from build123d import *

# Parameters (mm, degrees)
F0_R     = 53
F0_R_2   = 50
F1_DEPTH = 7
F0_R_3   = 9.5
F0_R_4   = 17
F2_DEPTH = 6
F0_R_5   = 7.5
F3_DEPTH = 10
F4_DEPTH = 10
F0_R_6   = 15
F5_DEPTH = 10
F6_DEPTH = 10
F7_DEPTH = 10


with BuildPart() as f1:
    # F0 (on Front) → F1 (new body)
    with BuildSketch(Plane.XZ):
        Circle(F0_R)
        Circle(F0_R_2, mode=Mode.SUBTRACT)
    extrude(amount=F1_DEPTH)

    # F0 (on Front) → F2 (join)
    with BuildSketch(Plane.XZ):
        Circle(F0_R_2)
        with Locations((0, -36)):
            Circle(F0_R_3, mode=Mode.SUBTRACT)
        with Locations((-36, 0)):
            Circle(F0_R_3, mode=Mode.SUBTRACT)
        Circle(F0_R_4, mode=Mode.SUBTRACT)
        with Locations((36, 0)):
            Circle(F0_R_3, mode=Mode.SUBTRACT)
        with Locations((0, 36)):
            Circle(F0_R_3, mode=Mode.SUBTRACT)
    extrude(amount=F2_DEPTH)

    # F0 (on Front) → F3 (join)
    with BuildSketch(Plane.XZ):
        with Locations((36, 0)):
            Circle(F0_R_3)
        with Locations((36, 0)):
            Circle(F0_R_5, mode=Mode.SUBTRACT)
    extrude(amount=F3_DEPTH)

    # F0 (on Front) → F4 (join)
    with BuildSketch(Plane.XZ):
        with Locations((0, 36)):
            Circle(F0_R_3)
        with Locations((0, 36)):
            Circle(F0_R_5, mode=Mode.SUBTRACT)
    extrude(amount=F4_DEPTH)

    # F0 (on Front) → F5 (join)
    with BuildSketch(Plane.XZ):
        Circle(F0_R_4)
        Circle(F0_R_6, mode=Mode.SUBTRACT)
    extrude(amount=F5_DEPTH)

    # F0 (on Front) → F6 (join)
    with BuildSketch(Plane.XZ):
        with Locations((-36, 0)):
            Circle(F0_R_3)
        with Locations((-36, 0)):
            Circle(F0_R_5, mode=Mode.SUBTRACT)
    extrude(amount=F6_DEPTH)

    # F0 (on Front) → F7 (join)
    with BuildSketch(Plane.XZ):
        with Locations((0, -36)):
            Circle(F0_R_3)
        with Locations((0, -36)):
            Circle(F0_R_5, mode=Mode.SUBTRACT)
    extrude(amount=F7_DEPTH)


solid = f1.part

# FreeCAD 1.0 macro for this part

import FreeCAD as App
import Part
import Sketcher
Q = App.Units.Quantity

doc = App.newDocument("Part")
body = doc.addObject("PartDesign::Body", "Body")

# Sketch on XZ plane
sketch1 = body.newObject("Sketcher::SketchObject", "Sketch")
sketch1.AttachmentSupport = (doc.getObject("XZ_Plane"), [""])
sketch1.MapMode = "FlatFace"
sketch1.addGeometry([
    Part.Circle(App.Vector(0, 0, 0), App.Vector(0, 0, 1), 53),
    Part.Circle(App.Vector(0, 0, 0), App.Vector(0, 0, 1), 50),
], False)
sketch1.addConstraint([
    Sketcher.Constraint("Coincident", 0, 3, -1, 1),
    Sketcher.Constraint("Coincident", 1, 3, -1, 1),
    Sketcher.Constraint("Diameter", 0, Q("106 mm")),
    Sketcher.Constraint("Diameter", 1, Q("100 mm")),
])
pad1 = body.newObject("PartDesign::Pad", "Pad")
pad1.Profile = sketch1
pad1.Length = 7

# Sketch on XZ plane
sketch2 = body.newObject("Sketcher::SketchObject", "Sketch001")
sketch2.AttachmentSupport = (doc.getObject("XZ_Plane"), [""])
sketch2.MapMode = "FlatFace"
sketch2.addGeometry([
    Part.Circle(App.Vector(0, 0, 0), App.Vector(0, 0, 1), 50),  # 0
    Part.Circle(App.Vector(0, -36, 0), App.Vector(0, 0, 1), 10),  # 1
    Part.Circle(App.Vector(-36, 0, 0), App.Vector(0, 0, 1), 10),  # 2
    Part.Circle(App.Vector(0, 0, 0), App.Vector(0, 0, 1), 17),  # 3
    Part.Circle(App.Vector(36, 0, 0), App.Vector(0, 0, 1), 10),  # 4
    Part.Circle(App.Vector(0, 36, 0), App.Vector(0, 0, 1), 10),  # 5
], False)
sketch2.addConstraint([
    Sketcher.Constraint("Coincident", 0, 3, -1, 1),
    Sketcher.Constraint("Coincident", 3, 3, -1, 1),
    Sketcher.Constraint("Equal", 1, 2),
    Sketcher.Constraint("Equal", 2, 4),
    Sketcher.Constraint("Equal", 4, 5),
    Sketcher.Constraint("Symmetric", 2, 3, 4, 3, -1, 1),
    Sketcher.Constraint("Symmetric", 1, 3, 5, 3, -1, 1),
    Sketcher.Constraint("PointOnObject", 1, 3, -2),
    Sketcher.Constraint("PointOnObject", 2, 3, -1),
    Sketcher.Constraint("Diameter", 0, Q("100 mm")),
    Sketcher.Constraint("Diameter", 1, Q("19 mm")),
    Sketcher.Constraint("Diameter", 3, Q("34 mm")),
    Sketcher.Constraint("DistanceY", 1, 3, -1, 1, Q("36 mm")),
    Sketcher.Constraint("DistanceX", 2, 3, -1, 1, Q("36 mm")),
])
pad2 = body.newObject("PartDesign::Pad", "Pad001")
pad2.Profile = sketch2
pad2.Length = 6

# Sketch on XZ plane
sketch3 = body.newObject("Sketcher::SketchObject", "Sketch002")
sketch3.AttachmentSupport = (doc.getObject("XZ_Plane"), [""])
sketch3.MapMode = "FlatFace"
sketch3.addGeometry([
    Part.Circle(App.Vector(36, 0, 0), App.Vector(0, 0, 1), 10),
    Part.Circle(App.Vector(36, 0, 0), App.Vector(0, 0, 1), 8),
], False)
sketch3.addConstraint([
    Sketcher.Constraint("Coincident", 1, 3, 0, 3),
    Sketcher.Constraint("PointOnObject", 0, 3, -1),
    Sketcher.Constraint("Diameter", 0, Q("19 mm")),
    Sketcher.Constraint("Diameter", 1, Q("15 mm")),
    Sketcher.Constraint("DistanceX", -1, 1, 0, 3, Q("36 mm")),
])
pad3 = body.newObject("PartDesign::Pad", "Pad002")
pad3.Profile = sketch3
pad3.Length = 10

# Sketch on XZ plane
sketch4 = body.newObject("Sketcher::SketchObject", "Sketch003")
sketch4.AttachmentSupport = (doc.getObject("XZ_Plane"), [""])
sketch4.MapMode = "FlatFace"
sketch4.addGeometry([
    Part.Circle(App.Vector(0, 36, 0), App.Vector(0, 0, 1), 10),
    Part.Circle(App.Vector(0, 36, 0), App.Vector(0, 0, 1), 8),
], False)
sketch4.addConstraint([
    Sketcher.Constraint("Coincident", 1, 3, 0, 3),
    Sketcher.Constraint("PointOnObject", 0, 3, -2),
    Sketcher.Constraint("Diameter", 0, Q("19 mm")),
    Sketcher.Constraint("Diameter", 1, Q("15 mm")),
    Sketcher.Constraint("DistanceY", -1, 1, 0, 3, Q("36 mm")),
])
pad4 = body.newObject("PartDesign::Pad", "Pad003")
pad4.Profile = sketch4
pad4.Length = 10

# Sketch on XZ plane
sketch5 = body.newObject("Sketcher::SketchObject", "Sketch004")
sketch5.AttachmentSupport = (doc.getObject("XZ_Plane"), [""])
sketch5.MapMode = "FlatFace"
sketch5.addGeometry([
    Part.Circle(App.Vector(0, 0, 0), App.Vector(0, 0, 1), 17),
    Part.Circle(App.Vector(0, 0, 0), App.Vector(0, 0, 1), 15),
], False)
sketch5.addConstraint([
    Sketcher.Constraint("Coincident", 0, 3, -1, 1),
    Sketcher.Constraint("Coincident", 1, 3, -1, 1),
    Sketcher.Constraint("Diameter", 0, Q("34 mm")),
    Sketcher.Constraint("Diameter", 1, Q("30 mm")),
])
pad5 = body.newObject("PartDesign::Pad", "Pad004")
pad5.Profile = sketch5
pad5.Length = 10

# Sketch on XZ plane
sketch6 = body.newObject("Sketcher::SketchObject", "Sketch005")
sketch6.AttachmentSupport = (doc.getObject("XZ_Plane"), [""])
sketch6.MapMode = "FlatFace"
sketch6.addGeometry([
    Part.Circle(App.Vector(-36, 0, 0), App.Vector(0, 0, 1), 10),
    Part.Circle(App.Vector(-36, 0, 0), App.Vector(0, 0, 1), 8),
], False)
sketch6.addConstraint([
    Sketcher.Constraint("Coincident", 1, 3, 0, 3),
    Sketcher.Constraint("PointOnObject", 0, 3, -1),
    Sketcher.Constraint("Diameter", 0, Q("19 mm")),
    Sketcher.Constraint("Diameter", 1, Q("15 mm")),
    Sketcher.Constraint("DistanceX", 0, 3, -1, 1, Q("36 mm")),
])
pad6 = body.newObject("PartDesign::Pad", "Pad005")
pad6.Profile = sketch6
pad6.Length = 10

# Sketch on XZ plane
sketch7 = body.newObject("Sketcher::SketchObject", "Sketch006")
sketch7.AttachmentSupport = (doc.getObject("XZ_Plane"), [""])
sketch7.MapMode = "FlatFace"
sketch7.addGeometry([
    Part.Circle(App.Vector(0, -36, 0), App.Vector(0, 0, 1), 10),
    Part.Circle(App.Vector(0, -36, 0), App.Vector(0, 0, 1), 8),
], False)
sketch7.addConstraint([
    Sketcher.Constraint("Coincident", 1, 3, 0, 3),
    Sketcher.Constraint("PointOnObject", 0, 3, -2),
    Sketcher.Constraint("Diameter", 0, Q("19 mm")),
    Sketcher.Constraint("Diameter", 1, Q("15 mm")),
    Sketcher.Constraint("DistanceY", 0, 3, -1, 1, Q("36 mm")),
])
pad7 = body.newObject("PartDesign::Pad", "Pad006")
pad7.Profile = sketch7
pad7.Length = 10

doc.recompute()
